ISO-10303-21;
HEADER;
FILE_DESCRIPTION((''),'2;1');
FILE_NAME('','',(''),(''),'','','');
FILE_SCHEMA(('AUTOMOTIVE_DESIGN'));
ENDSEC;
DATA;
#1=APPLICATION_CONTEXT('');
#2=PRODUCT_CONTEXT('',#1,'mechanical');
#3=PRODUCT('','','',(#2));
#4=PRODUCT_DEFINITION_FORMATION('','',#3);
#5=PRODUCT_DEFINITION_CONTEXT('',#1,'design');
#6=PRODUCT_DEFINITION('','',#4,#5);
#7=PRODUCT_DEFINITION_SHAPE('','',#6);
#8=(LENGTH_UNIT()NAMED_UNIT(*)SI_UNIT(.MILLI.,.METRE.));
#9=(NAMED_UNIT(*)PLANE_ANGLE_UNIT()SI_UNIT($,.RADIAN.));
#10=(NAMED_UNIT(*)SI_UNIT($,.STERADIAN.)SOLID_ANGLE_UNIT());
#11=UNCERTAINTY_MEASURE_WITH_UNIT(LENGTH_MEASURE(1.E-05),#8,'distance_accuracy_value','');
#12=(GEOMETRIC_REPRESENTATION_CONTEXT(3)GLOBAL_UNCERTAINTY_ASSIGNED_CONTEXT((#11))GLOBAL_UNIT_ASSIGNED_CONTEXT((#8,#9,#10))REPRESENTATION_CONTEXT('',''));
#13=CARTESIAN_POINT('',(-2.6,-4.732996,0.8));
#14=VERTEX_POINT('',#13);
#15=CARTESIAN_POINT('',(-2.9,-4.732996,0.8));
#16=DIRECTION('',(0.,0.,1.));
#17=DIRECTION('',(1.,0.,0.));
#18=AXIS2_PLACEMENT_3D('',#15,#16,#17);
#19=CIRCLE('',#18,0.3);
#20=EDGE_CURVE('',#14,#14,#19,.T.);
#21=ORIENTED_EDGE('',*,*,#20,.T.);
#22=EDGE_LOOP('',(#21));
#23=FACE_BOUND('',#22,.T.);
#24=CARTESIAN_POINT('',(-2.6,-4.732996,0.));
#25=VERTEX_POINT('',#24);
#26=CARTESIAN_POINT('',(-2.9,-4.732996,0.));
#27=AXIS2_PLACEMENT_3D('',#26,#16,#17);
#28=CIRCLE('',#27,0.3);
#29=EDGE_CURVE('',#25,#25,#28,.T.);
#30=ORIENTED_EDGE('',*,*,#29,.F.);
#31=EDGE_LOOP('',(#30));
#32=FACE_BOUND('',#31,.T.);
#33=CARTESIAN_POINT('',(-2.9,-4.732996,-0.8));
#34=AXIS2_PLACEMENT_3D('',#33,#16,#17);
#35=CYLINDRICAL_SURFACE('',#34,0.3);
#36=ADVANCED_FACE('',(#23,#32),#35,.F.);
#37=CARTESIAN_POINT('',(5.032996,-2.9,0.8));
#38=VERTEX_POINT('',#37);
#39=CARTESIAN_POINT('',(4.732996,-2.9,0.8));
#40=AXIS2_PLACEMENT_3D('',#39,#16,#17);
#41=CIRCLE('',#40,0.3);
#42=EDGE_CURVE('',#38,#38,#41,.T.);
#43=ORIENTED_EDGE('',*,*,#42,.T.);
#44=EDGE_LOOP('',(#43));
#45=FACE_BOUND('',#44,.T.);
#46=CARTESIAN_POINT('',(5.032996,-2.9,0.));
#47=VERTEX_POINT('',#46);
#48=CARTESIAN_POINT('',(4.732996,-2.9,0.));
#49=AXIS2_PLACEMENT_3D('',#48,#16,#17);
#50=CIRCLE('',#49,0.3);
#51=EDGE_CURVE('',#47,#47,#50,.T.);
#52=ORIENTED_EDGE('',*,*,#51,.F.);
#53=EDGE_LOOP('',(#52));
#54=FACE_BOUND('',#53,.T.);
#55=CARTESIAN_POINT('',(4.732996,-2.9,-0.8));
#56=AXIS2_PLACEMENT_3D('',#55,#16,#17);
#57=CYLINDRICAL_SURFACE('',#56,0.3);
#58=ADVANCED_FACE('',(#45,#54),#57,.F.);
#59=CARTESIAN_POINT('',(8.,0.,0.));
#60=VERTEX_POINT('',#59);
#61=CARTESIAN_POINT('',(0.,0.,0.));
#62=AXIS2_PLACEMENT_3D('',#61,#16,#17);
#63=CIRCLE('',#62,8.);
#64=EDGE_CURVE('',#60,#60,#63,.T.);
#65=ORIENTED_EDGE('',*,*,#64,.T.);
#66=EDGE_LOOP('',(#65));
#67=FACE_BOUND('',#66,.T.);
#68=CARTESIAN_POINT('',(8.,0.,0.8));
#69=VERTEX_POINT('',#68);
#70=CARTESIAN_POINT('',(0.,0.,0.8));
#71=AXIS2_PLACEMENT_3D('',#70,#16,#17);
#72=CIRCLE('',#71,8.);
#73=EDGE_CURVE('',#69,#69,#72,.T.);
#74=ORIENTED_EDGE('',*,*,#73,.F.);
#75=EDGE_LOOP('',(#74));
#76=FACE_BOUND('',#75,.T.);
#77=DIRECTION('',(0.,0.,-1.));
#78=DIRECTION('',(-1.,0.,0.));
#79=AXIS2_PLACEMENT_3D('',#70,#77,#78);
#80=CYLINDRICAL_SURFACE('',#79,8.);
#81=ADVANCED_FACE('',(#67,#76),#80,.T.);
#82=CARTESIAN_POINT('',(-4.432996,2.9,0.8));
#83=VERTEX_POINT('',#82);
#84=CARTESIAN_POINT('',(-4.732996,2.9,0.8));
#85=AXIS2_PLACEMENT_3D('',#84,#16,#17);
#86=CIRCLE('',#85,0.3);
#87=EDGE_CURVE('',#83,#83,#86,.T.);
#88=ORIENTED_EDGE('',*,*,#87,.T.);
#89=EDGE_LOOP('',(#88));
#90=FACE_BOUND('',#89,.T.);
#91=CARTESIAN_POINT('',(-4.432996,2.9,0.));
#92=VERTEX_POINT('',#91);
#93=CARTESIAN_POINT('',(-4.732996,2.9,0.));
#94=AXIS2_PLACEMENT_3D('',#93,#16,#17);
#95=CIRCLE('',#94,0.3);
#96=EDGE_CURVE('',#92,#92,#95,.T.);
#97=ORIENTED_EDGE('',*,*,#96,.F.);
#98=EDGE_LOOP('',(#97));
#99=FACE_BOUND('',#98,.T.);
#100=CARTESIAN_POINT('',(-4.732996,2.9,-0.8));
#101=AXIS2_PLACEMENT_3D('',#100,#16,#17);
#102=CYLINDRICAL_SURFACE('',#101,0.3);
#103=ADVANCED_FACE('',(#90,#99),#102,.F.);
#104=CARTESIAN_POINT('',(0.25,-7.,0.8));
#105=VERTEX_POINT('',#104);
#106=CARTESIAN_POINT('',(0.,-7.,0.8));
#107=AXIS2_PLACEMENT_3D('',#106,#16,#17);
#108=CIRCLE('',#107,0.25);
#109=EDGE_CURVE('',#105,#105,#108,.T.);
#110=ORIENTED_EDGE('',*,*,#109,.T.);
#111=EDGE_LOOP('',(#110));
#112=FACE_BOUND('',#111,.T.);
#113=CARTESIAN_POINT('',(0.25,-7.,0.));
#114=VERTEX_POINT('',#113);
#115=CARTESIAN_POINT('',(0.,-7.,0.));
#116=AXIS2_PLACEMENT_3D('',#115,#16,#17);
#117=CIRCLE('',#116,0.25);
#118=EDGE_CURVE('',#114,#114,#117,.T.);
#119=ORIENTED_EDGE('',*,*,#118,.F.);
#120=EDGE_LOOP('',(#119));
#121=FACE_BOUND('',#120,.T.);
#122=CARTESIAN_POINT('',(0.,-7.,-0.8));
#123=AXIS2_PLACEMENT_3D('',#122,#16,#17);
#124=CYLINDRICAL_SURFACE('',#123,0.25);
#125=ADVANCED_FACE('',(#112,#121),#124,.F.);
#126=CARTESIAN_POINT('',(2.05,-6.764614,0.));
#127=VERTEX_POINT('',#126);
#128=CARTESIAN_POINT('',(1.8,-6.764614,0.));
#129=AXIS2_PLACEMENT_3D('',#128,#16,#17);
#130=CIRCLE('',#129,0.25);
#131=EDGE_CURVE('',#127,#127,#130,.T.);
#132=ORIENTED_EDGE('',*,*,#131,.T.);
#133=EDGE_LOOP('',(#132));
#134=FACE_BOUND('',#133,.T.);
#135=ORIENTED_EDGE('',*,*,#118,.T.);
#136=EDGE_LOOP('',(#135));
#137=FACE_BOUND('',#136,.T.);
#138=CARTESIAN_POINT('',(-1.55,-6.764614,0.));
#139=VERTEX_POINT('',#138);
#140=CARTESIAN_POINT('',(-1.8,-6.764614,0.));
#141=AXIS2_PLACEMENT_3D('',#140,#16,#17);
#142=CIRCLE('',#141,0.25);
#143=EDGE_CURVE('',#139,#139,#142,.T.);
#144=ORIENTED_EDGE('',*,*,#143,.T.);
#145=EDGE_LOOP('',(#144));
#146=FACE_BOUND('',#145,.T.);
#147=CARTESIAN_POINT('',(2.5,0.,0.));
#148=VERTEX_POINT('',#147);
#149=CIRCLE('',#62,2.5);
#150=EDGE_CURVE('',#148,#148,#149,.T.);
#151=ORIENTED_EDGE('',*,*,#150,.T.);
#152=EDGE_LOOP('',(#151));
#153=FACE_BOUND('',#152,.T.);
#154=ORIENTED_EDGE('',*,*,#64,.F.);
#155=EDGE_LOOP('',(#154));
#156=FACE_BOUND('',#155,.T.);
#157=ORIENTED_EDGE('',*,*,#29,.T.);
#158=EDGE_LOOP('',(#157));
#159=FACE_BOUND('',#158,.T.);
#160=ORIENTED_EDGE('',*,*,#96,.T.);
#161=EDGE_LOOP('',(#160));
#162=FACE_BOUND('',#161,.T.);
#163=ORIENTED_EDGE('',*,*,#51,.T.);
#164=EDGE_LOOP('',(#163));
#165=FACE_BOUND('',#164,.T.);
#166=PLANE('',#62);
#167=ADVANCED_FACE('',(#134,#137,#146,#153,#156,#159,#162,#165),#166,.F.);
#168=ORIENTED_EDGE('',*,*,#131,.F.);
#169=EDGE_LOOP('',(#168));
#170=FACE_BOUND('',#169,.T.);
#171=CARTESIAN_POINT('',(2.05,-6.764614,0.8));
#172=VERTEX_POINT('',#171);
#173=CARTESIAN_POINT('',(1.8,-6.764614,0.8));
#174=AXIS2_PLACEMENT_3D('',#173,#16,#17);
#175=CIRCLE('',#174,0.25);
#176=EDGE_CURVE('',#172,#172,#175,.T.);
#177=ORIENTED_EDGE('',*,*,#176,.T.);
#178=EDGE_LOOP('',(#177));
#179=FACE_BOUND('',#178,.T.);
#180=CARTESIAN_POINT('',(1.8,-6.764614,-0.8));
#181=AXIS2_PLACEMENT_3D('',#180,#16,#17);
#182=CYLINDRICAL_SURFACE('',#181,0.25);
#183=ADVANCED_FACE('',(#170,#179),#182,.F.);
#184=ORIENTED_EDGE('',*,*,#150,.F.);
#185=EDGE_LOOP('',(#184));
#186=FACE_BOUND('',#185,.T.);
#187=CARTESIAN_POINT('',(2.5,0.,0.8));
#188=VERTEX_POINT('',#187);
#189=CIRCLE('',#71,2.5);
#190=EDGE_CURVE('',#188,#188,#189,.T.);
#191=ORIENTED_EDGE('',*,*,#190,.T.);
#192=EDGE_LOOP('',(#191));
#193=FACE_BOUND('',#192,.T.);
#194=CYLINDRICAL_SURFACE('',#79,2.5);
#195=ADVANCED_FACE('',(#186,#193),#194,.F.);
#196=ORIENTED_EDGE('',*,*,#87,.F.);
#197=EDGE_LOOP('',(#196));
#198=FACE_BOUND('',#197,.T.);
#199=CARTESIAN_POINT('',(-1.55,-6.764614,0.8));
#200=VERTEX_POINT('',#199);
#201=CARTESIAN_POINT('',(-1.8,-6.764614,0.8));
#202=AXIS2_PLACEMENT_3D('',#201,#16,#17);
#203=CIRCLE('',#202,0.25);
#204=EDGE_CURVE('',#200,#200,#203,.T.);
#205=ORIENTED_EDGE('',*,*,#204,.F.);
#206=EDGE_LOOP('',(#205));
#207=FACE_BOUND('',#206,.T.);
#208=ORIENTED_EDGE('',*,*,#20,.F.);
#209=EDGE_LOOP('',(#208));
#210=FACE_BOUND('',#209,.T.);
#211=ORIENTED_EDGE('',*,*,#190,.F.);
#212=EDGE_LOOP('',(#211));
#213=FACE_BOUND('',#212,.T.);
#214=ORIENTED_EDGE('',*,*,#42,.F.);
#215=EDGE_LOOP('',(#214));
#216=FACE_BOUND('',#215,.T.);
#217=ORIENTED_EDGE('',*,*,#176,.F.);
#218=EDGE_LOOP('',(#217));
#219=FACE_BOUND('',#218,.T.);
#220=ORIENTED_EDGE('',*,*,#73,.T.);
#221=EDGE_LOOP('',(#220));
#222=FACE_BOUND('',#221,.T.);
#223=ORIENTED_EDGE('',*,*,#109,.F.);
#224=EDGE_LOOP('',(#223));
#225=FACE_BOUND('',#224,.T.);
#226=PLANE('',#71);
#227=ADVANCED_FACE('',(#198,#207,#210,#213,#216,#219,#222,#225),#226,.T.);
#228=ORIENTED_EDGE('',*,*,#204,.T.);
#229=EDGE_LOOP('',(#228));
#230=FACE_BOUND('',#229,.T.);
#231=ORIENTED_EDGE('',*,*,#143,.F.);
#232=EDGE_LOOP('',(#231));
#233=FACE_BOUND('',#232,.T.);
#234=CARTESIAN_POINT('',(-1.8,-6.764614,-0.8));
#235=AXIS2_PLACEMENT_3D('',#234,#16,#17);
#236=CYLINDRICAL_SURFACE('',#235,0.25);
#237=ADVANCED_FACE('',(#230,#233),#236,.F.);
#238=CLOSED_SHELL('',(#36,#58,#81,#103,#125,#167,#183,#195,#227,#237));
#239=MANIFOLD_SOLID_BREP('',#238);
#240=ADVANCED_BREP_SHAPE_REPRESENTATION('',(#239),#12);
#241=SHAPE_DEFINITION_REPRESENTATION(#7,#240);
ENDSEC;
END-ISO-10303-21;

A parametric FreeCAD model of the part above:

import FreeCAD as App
import Part
import Sketcher

V = App.Vector

doc = App.newDocument("Part")
body = doc.addObject("PartDesign::Body", "Body")

# Sketch on XY plane
sketch1 = body.newObject("Sketcher::SketchObject", "Sketch")
sketch1.AttachmentSupport = (doc.getObject("XY_Plane"), [""])
sketch1.MapMode = "FlatFace"
sketch1.addGeometry([
    Part.Circle(V(0, 0, 0), V(0, 0, 1), 8),
    Part.Circle(V(0, 0, 0), V(0, 0, 1), 2.5),
], False)
sketch1.addConstraint([
    Sketcher.Constraint("Coincident", 0, 3, -1, 1),
    Sketcher.Constraint("Coincident", 1, 3, -1, 1),
    Sketcher.Constraint("Diameter", 0, 16.0),
    Sketcher.Constraint("Diameter", 1, 5.0),
])
pad1 = body.newObject("PartDesign::Pad", "Pad")
pad1.Profile = sketch1
pad1.Length = 0.8

# Sketch on XY plane
sketch2 = body.newObject("Sketcher::SketchObject", "Sketch001")
sketch2.AttachmentSupport = (doc.getObject("XY_Plane"), [""])
sketch2.MapMode = "FlatFace"
sketch2.AttachmentOffset = App.Placement(V(0, 0, 0.8), App.Rotation())
sketch2.addGeometry([
    Part.Circle(V(0, -7, 0), V(0, 0, 1), 0.25),  # 0
    Part.Circle(V(-1.8, -6.76, 0), V(0, 0, 1), 0.25),  # 1
    Part.Circle(V(1.8, -6.76, 0), V(0, 0, 1), 0.25),  # 2
    Part.Circle(V(4.73, -2.9, 0), V(0, 0, 1), 0.3),  # 3
    Part.Circle(V(-2.9, -4.73, 0), V(0, 0, 1), 0.3),  # 4
    Part.Circle(V(-4.73, 2.9, 0), V(0, 0, 1), 0.3),  # 5
], False)
sketch2.addConstraint([
    Sketcher.Constraint("Equal", 0, 1),
    Sketcher.Constraint("Equal", 1, 2),
    Sketcher.Constraint("Equal", 3, 4),
    Sketcher.Constraint("Equal", 4, 5),
    Sketcher.Constraint("Symmetric", 3, 3, 5, 3, -1, 1),
    Sketcher.Constraint("Symmetric", 1, 3, 2, 3, -2),
    Sketcher.Constraint("PointOnObject", 0, 3, -2),
    Sketcher.Constraint("Diameter", 0, 0.5),
    Sketcher.Constraint("Diameter", 3, 0.6),
    Sketcher.Constraint("DistanceY", 0, 3, -1, 1, 7.0),
    Sketcher.Constraint("DistanceX", 1, 3, -1, 1, 1.8),
    Sketcher.Constraint("DistanceY", 3, 3, -1, 1, 2.9),
    Sketcher.Constraint("DistanceX", 4, 3, -1, 1, 2.9),
    Sketcher.Constraint("DistanceX", 5, 3, 3, 3, 9.465992),
    Sketcher.Constraint("DistanceY", 1, 3, -1, 1, 6.764614),
    Sketcher.Constraint("DistanceY", 4, 3, -1, 1, 4.732996),
])
pocket1 = body.newObject("PartDesign::Pocket", "Pocket")
pocket1.Profile = sketch2
pocket1.Length = 1.6

doc.recompute()
